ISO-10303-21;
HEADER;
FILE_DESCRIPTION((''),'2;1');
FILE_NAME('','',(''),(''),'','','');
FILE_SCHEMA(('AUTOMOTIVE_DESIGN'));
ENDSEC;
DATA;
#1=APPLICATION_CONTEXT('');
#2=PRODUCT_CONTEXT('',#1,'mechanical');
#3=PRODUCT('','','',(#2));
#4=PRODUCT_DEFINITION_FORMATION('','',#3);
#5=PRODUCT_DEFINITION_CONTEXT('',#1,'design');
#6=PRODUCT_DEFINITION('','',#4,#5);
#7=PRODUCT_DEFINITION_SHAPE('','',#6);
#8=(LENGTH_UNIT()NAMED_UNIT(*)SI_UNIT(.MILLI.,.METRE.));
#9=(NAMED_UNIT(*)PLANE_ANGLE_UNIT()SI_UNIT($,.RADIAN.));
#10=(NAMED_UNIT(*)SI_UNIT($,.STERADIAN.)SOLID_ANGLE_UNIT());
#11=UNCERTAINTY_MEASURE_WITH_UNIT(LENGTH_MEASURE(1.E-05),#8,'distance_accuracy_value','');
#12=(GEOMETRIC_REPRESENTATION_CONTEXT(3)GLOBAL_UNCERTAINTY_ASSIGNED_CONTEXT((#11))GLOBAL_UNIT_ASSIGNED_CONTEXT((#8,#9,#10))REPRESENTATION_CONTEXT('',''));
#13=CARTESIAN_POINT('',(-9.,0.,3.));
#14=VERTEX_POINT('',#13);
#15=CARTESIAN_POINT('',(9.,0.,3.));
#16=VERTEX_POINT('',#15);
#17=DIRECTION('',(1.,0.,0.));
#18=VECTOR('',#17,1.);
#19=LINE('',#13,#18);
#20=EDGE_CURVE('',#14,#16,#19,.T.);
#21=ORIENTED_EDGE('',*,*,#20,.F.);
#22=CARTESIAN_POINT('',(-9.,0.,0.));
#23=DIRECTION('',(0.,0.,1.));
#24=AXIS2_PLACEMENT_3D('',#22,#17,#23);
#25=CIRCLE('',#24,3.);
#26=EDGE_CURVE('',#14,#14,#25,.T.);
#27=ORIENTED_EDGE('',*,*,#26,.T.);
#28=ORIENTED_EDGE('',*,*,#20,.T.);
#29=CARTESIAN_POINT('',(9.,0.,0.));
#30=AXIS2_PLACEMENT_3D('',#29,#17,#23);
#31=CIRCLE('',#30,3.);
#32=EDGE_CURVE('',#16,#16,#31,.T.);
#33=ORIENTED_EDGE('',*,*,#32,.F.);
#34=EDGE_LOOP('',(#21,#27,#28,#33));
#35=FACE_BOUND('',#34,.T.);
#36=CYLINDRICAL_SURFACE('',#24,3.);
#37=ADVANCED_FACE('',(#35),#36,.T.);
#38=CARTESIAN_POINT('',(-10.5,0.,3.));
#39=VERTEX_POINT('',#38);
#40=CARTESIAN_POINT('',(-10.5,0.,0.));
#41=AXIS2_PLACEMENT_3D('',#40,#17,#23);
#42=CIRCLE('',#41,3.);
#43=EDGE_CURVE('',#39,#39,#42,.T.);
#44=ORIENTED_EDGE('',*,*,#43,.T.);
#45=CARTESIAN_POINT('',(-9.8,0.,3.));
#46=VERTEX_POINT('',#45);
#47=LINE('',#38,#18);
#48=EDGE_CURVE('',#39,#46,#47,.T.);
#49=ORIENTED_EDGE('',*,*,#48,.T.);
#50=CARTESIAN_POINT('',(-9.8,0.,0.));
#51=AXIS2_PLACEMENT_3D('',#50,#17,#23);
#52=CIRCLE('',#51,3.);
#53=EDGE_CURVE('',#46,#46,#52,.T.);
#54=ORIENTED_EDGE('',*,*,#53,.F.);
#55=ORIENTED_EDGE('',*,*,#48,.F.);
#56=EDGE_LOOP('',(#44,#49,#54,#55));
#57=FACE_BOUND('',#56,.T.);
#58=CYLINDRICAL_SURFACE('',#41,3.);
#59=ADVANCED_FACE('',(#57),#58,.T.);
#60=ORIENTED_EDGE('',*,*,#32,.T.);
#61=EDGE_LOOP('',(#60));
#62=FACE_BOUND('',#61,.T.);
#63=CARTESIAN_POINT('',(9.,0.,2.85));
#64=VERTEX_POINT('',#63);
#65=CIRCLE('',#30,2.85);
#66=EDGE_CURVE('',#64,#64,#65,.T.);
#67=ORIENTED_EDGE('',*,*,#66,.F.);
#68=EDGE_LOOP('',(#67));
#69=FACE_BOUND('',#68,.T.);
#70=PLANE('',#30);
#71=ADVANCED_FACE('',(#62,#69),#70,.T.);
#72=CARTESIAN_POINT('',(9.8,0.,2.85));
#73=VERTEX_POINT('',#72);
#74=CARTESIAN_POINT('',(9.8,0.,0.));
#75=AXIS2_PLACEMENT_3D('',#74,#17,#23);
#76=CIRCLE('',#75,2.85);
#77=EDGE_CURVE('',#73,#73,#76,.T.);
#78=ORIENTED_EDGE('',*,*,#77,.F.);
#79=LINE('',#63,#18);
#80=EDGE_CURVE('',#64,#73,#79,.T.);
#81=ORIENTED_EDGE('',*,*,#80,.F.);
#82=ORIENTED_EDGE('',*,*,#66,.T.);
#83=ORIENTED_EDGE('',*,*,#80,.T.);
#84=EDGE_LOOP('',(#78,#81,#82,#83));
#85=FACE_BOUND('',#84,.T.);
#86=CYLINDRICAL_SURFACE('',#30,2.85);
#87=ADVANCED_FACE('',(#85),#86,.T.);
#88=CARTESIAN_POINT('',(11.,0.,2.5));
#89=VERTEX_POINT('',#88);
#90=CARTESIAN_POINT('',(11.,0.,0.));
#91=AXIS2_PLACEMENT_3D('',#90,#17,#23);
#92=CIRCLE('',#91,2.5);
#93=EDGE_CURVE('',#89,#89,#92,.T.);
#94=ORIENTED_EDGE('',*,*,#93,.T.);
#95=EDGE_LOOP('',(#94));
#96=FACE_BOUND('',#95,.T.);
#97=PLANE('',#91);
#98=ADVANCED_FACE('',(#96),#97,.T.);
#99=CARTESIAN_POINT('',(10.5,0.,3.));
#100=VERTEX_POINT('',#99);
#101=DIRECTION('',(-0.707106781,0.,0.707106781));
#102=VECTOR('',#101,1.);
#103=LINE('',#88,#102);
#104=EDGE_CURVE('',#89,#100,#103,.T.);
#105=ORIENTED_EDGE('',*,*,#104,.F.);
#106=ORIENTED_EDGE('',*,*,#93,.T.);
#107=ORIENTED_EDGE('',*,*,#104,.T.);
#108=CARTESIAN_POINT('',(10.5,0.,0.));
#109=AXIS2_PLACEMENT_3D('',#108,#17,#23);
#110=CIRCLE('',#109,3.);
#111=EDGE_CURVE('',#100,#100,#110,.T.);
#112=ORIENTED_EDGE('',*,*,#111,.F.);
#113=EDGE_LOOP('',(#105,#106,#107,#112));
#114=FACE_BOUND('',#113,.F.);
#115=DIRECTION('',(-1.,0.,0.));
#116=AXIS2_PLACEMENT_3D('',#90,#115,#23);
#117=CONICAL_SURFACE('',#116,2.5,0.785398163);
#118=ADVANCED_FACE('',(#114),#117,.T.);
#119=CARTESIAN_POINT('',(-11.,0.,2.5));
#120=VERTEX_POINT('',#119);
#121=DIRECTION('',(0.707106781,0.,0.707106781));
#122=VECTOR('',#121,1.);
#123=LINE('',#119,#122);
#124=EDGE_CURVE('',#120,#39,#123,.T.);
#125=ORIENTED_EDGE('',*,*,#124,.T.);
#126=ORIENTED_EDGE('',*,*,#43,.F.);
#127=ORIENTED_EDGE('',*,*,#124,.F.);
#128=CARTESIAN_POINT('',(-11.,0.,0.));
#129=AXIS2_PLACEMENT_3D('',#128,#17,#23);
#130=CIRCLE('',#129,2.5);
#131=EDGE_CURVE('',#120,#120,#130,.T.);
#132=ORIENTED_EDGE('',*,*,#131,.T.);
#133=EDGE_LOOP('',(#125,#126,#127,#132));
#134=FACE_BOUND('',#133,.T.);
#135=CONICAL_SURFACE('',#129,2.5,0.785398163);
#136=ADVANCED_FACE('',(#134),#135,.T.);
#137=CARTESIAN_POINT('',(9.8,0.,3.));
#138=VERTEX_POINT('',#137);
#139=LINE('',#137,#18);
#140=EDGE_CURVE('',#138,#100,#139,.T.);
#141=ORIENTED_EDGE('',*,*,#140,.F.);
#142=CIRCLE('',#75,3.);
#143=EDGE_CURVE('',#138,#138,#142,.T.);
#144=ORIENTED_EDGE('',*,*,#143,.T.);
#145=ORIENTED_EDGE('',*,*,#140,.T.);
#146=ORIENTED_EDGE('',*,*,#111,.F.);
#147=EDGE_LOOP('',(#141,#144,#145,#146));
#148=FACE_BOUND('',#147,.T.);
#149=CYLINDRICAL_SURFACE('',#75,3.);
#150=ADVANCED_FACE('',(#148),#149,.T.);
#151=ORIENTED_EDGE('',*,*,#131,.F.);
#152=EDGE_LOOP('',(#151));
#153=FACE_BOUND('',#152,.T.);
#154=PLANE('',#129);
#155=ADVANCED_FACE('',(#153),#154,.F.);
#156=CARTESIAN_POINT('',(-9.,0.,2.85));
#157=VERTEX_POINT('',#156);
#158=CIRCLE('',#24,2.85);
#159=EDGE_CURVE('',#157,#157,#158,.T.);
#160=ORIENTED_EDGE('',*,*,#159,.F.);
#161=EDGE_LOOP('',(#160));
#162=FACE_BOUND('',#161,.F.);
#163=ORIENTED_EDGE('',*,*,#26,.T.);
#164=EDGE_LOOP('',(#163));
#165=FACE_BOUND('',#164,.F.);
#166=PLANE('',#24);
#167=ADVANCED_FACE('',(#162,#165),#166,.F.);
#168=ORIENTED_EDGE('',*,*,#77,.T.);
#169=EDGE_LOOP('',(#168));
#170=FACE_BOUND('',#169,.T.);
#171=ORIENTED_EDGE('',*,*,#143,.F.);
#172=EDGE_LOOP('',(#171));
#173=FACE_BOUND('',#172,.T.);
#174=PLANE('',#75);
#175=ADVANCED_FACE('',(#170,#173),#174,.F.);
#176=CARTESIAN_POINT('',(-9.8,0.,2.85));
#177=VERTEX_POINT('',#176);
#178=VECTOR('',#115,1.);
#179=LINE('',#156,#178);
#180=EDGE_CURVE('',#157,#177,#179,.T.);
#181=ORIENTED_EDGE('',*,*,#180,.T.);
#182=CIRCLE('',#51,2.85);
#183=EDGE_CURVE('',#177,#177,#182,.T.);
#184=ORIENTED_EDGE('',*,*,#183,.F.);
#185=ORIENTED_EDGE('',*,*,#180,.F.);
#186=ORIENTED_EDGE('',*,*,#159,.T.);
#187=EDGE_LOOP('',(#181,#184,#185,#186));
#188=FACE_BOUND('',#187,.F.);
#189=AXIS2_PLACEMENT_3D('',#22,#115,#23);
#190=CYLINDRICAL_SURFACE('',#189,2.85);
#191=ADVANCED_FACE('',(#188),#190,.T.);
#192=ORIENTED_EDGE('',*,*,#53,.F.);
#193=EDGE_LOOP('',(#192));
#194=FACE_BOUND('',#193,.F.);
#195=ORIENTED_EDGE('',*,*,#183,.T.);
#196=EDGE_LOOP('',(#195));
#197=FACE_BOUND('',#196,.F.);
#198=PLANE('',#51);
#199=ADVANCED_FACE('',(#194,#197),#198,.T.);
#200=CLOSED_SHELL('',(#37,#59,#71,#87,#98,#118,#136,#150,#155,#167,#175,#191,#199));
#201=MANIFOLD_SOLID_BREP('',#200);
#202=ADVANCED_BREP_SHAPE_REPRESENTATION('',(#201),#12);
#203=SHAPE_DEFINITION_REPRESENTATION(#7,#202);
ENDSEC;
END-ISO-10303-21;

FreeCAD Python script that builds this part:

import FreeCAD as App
import Part
import Sketcher
Q = App.Units.Quantity


def add_polygon(sketch, points):
    """Adds a closed chain of lines whose ends are joined by coincident constraints."""
    first, n = sketch.GeometryCount, len(points)
    for a, b in zip(points, points[1:] + points[:1]):
        sketch.addGeometry(Part.LineSegment(App.Vector(*a, 0), App.Vector(*b, 0)), False)
    for i in range(n):
        sketch.addConstraint(Sketcher.Constraint("Coincident", first + i, 2, first + (i + 1) % n, 1))

doc = App.newDocument("Part")
body = doc.addObject("PartDesign::Body", "Body")

sketch1 = body.newObject("Sketcher::SketchObject", "Sketch")
sketch1.AttachmentSupport = (doc.getObject("XZ_Plane"), [""])
sketch1.MapMode = "FlatFace"
add_polygon(sketch1, [(-11, 0), (-11, 2.5), (-10.5, 3), (-9.8, 3), (-9.8, 2.85), (-9, 2.85), (-9, 3), (9, 3), (9, 2.85), (9.8, 2.85), (9.8, 3), (10.5, 3), (11, 2.5), (11, 0)])
sketch1.addConstraint([
    Sketcher.Constraint("Vertical", 0),
    Sketcher.Constraint("Horizontal", 2),
    Sketcher.Constraint("Vertical", 3),
    Sketcher.Constraint("Horizontal", 4),
    Sketcher.Constraint("Vertical", 5),
    Sketcher.Constraint("Horizontal", 6),
    Sketcher.Constraint("Vertical", 7),
    Sketcher.Constraint("Horizontal", 8),
    Sketcher.Constraint("Vertical", 9),
    Sketcher.Constraint("Horizontal", 10),
    Sketcher.Constraint("Vertical", 12),
    Sketcher.Constraint("Horizontal", 13),
    Sketcher.Constraint("Symmetric", 12, 2, 13, 2, -1, 1),
    Sketcher.Constraint("Symmetric", 4, 2, 7, 2, -2),
    Sketcher.Constraint("Symmetric", 2, 2, 9, 2, -2),
    Sketcher.Constraint("Perpendicular", 1, 11),
    Sketcher.Constraint("Horizontal", 2, 2, 5, 2),
    Sketcher.Constraint("Horizontal", 0, 2, 11, 2),
    Sketcher.Constraint("Equal", 2, 10),
    Sketcher.Constraint("DistanceX", 6, 1, 6, 2, Q("18 mm")),
    Sketcher.Constraint("DistanceX", 13, 2, 13, 1, Q("22 mm")),
    Sketcher.Constraint("DistanceX", 4, 1, 4, 2, Q("0.8 mm")),
    Sketcher.Constraint("DistanceX", 0, 2, 1, 2, Q("0.5 mm")),
    Sketcher.Constraint("DistanceY", 0, 1, 0, 2, Q("2.5 mm")),
    Sketcher.Constraint("DistanceY", 3, 2, 3, 1, Q("0.15 mm")),
])
revolution = body.newObject("PartDesign::Revolution", "Revolution")
revolution.Profile = sketch1
revolution.ReferenceAxis = (sketch1, ["H_Axis"])
revolution.Angle = 360

doc.recompute()
